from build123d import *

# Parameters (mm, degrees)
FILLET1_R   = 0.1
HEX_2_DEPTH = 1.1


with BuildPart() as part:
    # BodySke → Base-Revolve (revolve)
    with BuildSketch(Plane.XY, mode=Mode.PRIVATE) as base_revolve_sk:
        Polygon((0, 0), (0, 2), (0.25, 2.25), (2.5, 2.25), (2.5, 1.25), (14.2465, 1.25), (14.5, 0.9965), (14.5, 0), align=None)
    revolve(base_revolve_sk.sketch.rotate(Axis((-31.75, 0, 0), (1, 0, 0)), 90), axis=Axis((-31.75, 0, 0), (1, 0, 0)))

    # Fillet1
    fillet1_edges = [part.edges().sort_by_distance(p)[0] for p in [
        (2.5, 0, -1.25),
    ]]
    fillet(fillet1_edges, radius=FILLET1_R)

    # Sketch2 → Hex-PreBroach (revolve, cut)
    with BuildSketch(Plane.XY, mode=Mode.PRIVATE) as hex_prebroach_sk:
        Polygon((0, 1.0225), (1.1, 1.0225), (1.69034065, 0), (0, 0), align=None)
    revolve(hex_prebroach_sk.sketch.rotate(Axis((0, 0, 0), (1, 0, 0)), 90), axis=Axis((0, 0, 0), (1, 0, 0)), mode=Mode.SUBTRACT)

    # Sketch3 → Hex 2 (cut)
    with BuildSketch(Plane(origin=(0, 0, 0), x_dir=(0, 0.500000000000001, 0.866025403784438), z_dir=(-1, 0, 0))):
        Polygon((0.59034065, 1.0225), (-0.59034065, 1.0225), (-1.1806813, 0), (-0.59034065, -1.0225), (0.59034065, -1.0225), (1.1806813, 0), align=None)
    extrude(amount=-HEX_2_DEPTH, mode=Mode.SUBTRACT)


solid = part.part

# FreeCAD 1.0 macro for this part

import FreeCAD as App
import Part
import Sketcher

V = App.Vector
Q = App.Units.Quantity


def edges_at(feature, points):
    """Names of the edges that pass closest to the given points."""
    edges = feature.Shape.Edges
    near = lambda p: min(range(len(edges)), key=lambda i: edges[i].distToShape(Part.Vertex(*p))[0])
    return sorted({f"Edge{near(p) + 1}" for p in points})

doc = App.newDocument("Part")
body = doc.addObject("PartDesign::Body", "Body")

# Sketch on XY plane
sketch1 = doc.addObject("Sketcher::SketchObject", "Sketch")
body.addObject(sketch1)
sketch1.AttachmentSupport = (doc.XY_Plane, [""])
sketch1.MapMode = "FlatFace"
sketch1.addGeometry([
    Part.LineSegment(V(0, 2, 0), V(0, 0, 0)),  # 0
    Part.LineSegment(V(0, 0, 0), V(14.5, 0, 0)),  # 1
    Part.LineSegment(V(14.5, 0, 0), V(14.5, 1, 0)),  # 2
    Part.LineSegment(V(14.5, 1, 0), V(14.25, 1.25, 0)),  # 3
    Part.LineSegment(V(14.25, 1.25, 0), V(2.5, 1.25, 0)),  # 4
    Part.LineSegment(V(2.5, 1.25, 0), V(2.5, 2.25, 0)),  # 5
    Part.LineSegment(V(2.5, 2.25, 0), V(0.25, 2.25, 0)),  # 6
    Part.LineSegment(V(0.25, 2.25, 0), V(0, 2, 0)),  # 7
], False)
sketch1.addConstraint([
    Sketcher.Constraint("Coincident", 0, 2, 1, 1),
    Sketcher.Constraint("Coincident", 1, 2, 2, 1),
    Sketcher.Constraint("Coincident", 2, 2, 3, 1),
    Sketcher.Constraint("Coincident", 3, 2, 4, 1),
    Sketcher.Constraint("Coincident", 4, 2, 5, 1),
    Sketcher.Constraint("Coincident", 5, 2, 6, 1),
    Sketcher.Constraint("Coincident", 6, 2, 7, 1),
    Sketcher.Constraint("Coincident", 7, 2, 0, 1),
    Sketcher.Constraint("Vertical", 0),
    Sketcher.Constraint("Horizontal", 1),
    Sketcher.Constraint("Vertical", 2),
    Sketcher.Constraint("Horizontal", 4),
    Sketcher.Constraint("Vertical", 5),
    Sketcher.Constraint("Horizontal", 6),
    Sketcher.Constraint("Coincident", 0, 2, -1, 1),
    Sketcher.Constraint("Perpendicular", 3, 7),
    Sketcher.Constraint("DistanceY", 0, 2, 0, 1, Q("2 mm")),
    Sketcher.Constraint("DistanceY", 5, 1, 5, 2, Q("1 mm")),
    Sketcher.Constraint("Angle", 3, Q("135 deg")),
    Sketcher.Constraint("DistanceX", 1, 1, 1, 2, Q("14.5 mm")),
    Sketcher.Constraint("DistanceX", 4, 2, 2, 2, Q("12 mm")),
    Sketcher.Constraint("DistanceX", 6, 2, 6, 1, Q("2.25 mm")),
    Sketcher.Constraint("DistanceX", 4, 2, 4, 1, Q("11.7465 mm")),
])
revolution = doc.addObject("PartDesign::Revolution", "Revolution")
body.addObject(revolution)
revolution.Profile = sketch1
revolution.ReferenceAxis = (sketch1, ["H_Axis"])
revolution.Angle = 360
doc.recompute()

fillet = doc.addObject("PartDesign::Fillet", "Fillet")
body.addObject(fillet)
fillet.Base = (revolution, edges_at(revolution, [(2.5, 0, -1.25)]))
fillet.Radius = 0.1

# Sketch on XY plane
sketch2 = doc.addObject("Sketcher::SketchObject", "Sketch001")
body.addObject(sketch2)
sketch2.AttachmentSupport = (doc.XY_Plane, [""])
sketch2.MapMode = "FlatFace"
sketch2.addGeometry([
    Part.LineSegment(V(1.1, 1, 0), V(0, 1, 0)),
    Part.LineSegment(V(0, 1, 0), V(0, 0, 0)),
    Part.LineSegment(V(0, 0, 0), V(1.7, 0, 0)),
    Part.LineSegment(V(1.7, 0, 0), V(1.1, 1, 0)),
], False)
sketch2.addConstraint([
    Sketcher.Constraint("Coincident", 0, 2, 1, 1),
    Sketcher.Constraint("Coincident", 1, 2, 2, 1),
    Sketcher.Constraint("Coincident", 2, 2, 3, 1),
    Sketcher.Constraint("Coincident", 3, 2, 0, 1),
    Sketcher.Constraint("Horizontal", 0),
    Sketcher.Constraint("Vertical", 1),
    Sketcher.Constraint("Horizontal", 2),
    Sketcher.Constraint("Coincident", 1, 2, -1, 1),
    Sketcher.Constraint("Angle", 3, Q("120 deg")),
    Sketcher.Constraint("DistanceX", 0, 2, 0, 1, Q("1.1 mm")),
    Sketcher.Constraint("DistanceY", 1, 2, 1, 1, Q("1.0225 mm")),
])
groove = doc.addObject("PartDesign::Groove", "Groove")
body.addObject(groove)
groove.Profile = sketch2
groove.ReferenceAxis = (sketch2, ["H_Axis"])
groove.Angle = 360

# Sketch on YZ plane
sketch3 = doc.addObject("Sketcher::SketchObject", "Sketch002")
body.addObject(sketch3)
sketch3.AttachmentSupport = (doc.YZ_Plane, [""])
sketch3.MapMode = "FlatFace"
sketch3.addGeometry([
    Part.LineSegment(V(1.2, 0, 0), V(0.6, -1, 0)),  # 0
    Part.LineSegment(V(0.6, -1, 0), V(-0.6, -1, 0)),  # 1
    Part.LineSegment(V(-0.6, -1, 0), V(-1.2, 0, 0)),  # 2
    Part.LineSegment(V(-1.2, 0, 0), V(-0.6, 1, 0)),  # 3
    Part.LineSegment(V(-0.6, 1, 0), V(0.6, 1, 0)),  # 4
    Part.LineSegment(V(0.6, 1, 0), V(1.2, 0, 0)),  # 5
], False)
sketch3.addConstraint([
    Sketcher.Constraint("Coincident", 0, 2, 1, 1),
    Sketcher.Constraint("Coincident", 1, 2, 2, 1),
    Sketcher.Constraint("Coincident", 2, 2, 3, 1),
    Sketcher.Constraint("Coincident", 3, 2, 4, 1),
    Sketcher.Constraint("Coincident", 4, 2, 5, 1),
    Sketcher.Constraint("Coincident", 5, 2, 0, 1),
    Sketcher.Constraint("Horizontal", 1),
    Sketcher.Constraint("Horizontal", 4),
    Sketcher.Constraint("Symmetric", 0, 2, 3, 2, -1, 1),
    Sketcher.Constraint("Symmetric", 2, 2, 5, 2, -1, 1),
    Sketcher.Constraint("PointOnObject", 2, 2, -1),
    Sketcher.Constraint("Parallel", 2, 5),
    Sketcher.Constraint("Vertical", 1, 2, 3, 2),
    Sketcher.Constraint("Angle", 0, Q("-120 deg")),
    Sketcher.Constraint("DistanceY", 1, 2, 3, 2, Q("2.045 mm")),
    Sketcher.Constraint("DistanceX", 1, 2, 1, 1, Q("1.180681 mm")),
])
pocket1 = doc.addObject("PartDesign::Pocket", "Pocket")
body.addObject(pocket1)
pocket1.Profile = sketch3
pocket1.Length = 1.1
pocket1.Reversed = True

doc.recompute()
